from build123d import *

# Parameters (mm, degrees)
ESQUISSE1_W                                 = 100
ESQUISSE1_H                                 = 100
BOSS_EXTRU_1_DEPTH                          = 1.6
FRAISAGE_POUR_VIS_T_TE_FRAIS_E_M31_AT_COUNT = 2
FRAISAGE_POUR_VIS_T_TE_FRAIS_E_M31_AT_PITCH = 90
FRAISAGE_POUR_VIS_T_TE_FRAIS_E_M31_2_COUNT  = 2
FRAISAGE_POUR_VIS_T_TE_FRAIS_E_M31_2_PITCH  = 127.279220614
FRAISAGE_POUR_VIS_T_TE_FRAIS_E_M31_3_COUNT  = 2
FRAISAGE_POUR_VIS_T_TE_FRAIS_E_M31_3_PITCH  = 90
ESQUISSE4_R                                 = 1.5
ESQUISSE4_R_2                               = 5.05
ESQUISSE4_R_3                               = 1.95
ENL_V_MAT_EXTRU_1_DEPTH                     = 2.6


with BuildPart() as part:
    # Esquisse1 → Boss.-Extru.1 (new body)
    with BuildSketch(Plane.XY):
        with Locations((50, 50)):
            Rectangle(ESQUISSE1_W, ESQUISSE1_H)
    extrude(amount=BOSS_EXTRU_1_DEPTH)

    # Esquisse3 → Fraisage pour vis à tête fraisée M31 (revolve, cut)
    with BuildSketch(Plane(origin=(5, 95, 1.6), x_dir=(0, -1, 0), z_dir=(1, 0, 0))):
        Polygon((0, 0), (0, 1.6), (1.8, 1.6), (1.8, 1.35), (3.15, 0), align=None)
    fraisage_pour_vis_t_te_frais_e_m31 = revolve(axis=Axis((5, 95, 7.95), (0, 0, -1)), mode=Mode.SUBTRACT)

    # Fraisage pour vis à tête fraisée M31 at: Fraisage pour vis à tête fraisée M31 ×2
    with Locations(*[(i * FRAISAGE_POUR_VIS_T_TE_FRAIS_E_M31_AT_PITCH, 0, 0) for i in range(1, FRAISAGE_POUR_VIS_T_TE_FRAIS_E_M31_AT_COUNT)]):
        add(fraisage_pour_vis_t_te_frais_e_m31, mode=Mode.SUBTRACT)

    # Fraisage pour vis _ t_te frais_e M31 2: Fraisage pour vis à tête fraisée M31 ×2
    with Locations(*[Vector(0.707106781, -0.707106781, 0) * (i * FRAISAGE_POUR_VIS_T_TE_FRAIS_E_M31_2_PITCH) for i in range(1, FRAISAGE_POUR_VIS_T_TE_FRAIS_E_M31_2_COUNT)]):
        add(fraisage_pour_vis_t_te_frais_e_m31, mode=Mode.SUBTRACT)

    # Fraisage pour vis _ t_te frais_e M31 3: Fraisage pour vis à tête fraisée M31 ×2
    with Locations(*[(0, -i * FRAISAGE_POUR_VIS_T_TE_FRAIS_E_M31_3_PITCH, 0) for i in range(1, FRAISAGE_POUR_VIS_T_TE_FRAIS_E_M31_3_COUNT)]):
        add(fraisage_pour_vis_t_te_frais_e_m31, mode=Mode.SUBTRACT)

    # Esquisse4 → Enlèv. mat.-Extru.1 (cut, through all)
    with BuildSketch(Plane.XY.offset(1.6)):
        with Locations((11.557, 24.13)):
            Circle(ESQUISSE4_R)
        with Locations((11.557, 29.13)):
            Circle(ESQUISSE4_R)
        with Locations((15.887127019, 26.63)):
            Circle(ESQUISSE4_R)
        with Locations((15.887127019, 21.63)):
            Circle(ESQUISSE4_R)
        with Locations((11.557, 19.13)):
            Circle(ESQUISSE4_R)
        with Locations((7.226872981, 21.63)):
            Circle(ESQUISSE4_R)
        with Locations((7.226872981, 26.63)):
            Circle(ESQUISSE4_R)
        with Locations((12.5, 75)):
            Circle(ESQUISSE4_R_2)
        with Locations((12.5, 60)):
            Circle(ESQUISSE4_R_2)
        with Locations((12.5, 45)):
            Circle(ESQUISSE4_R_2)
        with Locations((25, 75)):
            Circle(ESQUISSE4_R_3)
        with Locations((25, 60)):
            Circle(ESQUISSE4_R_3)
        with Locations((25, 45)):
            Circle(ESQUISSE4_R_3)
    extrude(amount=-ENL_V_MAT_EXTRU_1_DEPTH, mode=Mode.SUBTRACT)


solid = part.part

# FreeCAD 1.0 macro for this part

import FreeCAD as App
import Part
import Sketcher
Q = App.Units.Quantity


def add_polygon(sketch, points):
    """Adds a closed chain of lines whose ends are joined by coincident constraints."""
    first, n = sketch.GeometryCount, len(points)
    for a, b in zip(points, points[1:] + points[:1]):
        sketch.addGeometry(Part.LineSegment(App.Vector(*a, 0), App.Vector(*b, 0)), False)
    for i in range(n):
        sketch.addConstraint(Sketcher.Constraint("Coincident", first + i, 2, first + (i + 1) % n, 1))

doc = App.newDocument("Part")
params = doc.addObject("Spreadsheet::Sheet", "Params")
for row, (alias, value) in enumerate([
    ("sketch1_width", "100 mm"),
    ("pad1_length", "1.6 mm"),
    ("sketch2_width", "1.8 mm"),
    ("sketch2_height", "1.6 mm"),
    ("sketch2_width2", "3.15 mm"),
    ("groove_angle", "360 deg"),
    ("linearpattern_pitch", "90 mm"),
    ("linearpattern2_pitch", "127.279221 mm"),
    ("linearpattern3_pitch", "90 mm"),
    ("sketch3_diameter", "3 mm"),
    ("sketch3_diameter2", "10.1 mm"),
    ("sketch3_diameter3", "3.9 mm"),
], start=1):
    params.set(f"A{row}", alias)
    params.set(f"B{row}", "=" + value)
    params.setAlias(f"B{row}", alias)

body = doc.addObject("PartDesign::Body", "Body")

# Sketch on XY plane
sketch1 = body.newObject("Sketcher::SketchObject", "Sketch")
sketch1.AttachmentSupport = (doc.getObject("XY_Plane"), [""])
sketch1.MapMode = "FlatFace"
add_polygon(sketch1, [(0, 100), (0, 0), (100, 0), (100, 100)])  # lines 0-3
sketch1.addConstraint(Sketcher.Constraint("Vertical", 0))
sketch1.addConstraint(Sketcher.Constraint("Horizontal", 1))
sketch1.addConstraint(Sketcher.Constraint("Vertical", 2))
sketch1.addConstraint(Sketcher.Constraint("Horizontal", 3))
sketch1.addConstraint(Sketcher.Constraint("Coincident", 0, 2, -1, 1))
sketch1.addConstraint(Sketcher.Constraint("Equal", 3, 0))
sketch1.addConstraint(Sketcher.Constraint("DistanceX", 1, 1, 1, 2, 100.0))
sketch1.setExpression("Constraints[10]", "Params.sketch1_width")
pad1 = body.newObject("PartDesign::Pad", "Pad")
pad1.Profile = sketch1
pad1.setExpression("Length", "Params.pad1_length")

# Sketch on YZ plane
sketch2 = body.newObject("Sketcher::SketchObject", "Sketch001")
sketch2.AttachmentSupport = (doc.getObject("YZ_Plane"), [""])
sketch2.MapMode = "FlatFace"
sketch2.AttachmentOffset = App.Placement(App.Vector(0, 0, 5), App.Rotation())
add_polygon(sketch2, [(95, 0), (95, 1.6), (91.85, 1.6), (93.2, 0.25), (93.2, 0)])  # lines 0-4
sketch2.addGeometry(Part.LineSegment(App.Vector(95, 1.6, 0), App.Vector(95, 0, 0)), True)  # axis
sketch2.addConstraint(Sketcher.Constraint("Vertical", 0))
sketch2.addConstraint(Sketcher.Constraint("Horizontal", 1))
sketch2.addConstraint(Sketcher.Constraint("Vertical", 3))
sketch2.addConstraint(Sketcher.Constraint("Horizontal", 4))
sketch2.addConstraint(Sketcher.Constraint("Vertical", 5))
sketch2.addConstraint(Sketcher.Constraint("Coincident", 5, 1, 0, 2))
sketch2.addConstraint(Sketcher.Constraint("PointOnObject", 3, 2, -1))
sketch2.addConstraint(Sketcher.Constraint("PointOnObject", 5, 2, -1))
sketch2.addConstraint(Sketcher.Constraint("Angle", 2, Q("-45 deg")))
sketch2.addConstraint(Sketcher.Constraint("DistanceX", 4, 1, 4, 2, 1.8))
sketch2.addConstraint(Sketcher.Constraint("DistanceY", 0, 1, 0, 2, 1.6))
sketch2.addConstraint(Sketcher.Constraint("DistanceX", -1, 1, 0, 2, 95.0))
sketch2.addConstraint(Sketcher.Constraint("DistanceX", 1, 2, 1, 1, 3.15))
sketch2.setExpression("Constraints[14]", "Params.sketch2_width")
sketch2.setExpression("Constraints[15]", "Params.sketch2_height")
sketch2.setExpression("Constraints[17]", "Params.sketch2_width2")
groove = body.newObject("PartDesign::Groove", "Groove")
groove.Profile = sketch2
groove.ReferenceAxis = (sketch2, ["Axis0"])
groove.setExpression("Angle", "Params.groove_angle")
doc.recompute()

linearpattern = body.newObject("PartDesign::LinearPattern", "LinearPattern")
linearpattern.Originals = [groove]
linearpattern.Direction = (doc.getObject("X_Axis"), [""])
linearpattern.Mode = "offset"
linearpattern.setExpression("Offset", "Params.linearpattern_pitch")
linearpattern.Occurrences = 2
body.Tip = linearpattern
doc.recompute()

datumline = body.newObject("PartDesign::Line", "DatumLine")
datumline.Placement = App.Placement(App.Vector(0, 0, 0), App.Rotation(App.Vector(0, 0, 1), App.Vector(0.707106781, -0.707106781, 0)))
linearpattern2 = body.newObject("PartDesign::LinearPattern", "LinearPattern001")
linearpattern2.Originals = [groove]
linearpattern2.Direction = (datumline, [""])
linearpattern2.Mode = "offset"
linearpattern2.setExpression("Offset", "Params.linearpattern2_pitch")
linearpattern2.Occurrences = 2
body.Tip = linearpattern2
doc.recompute()

linearpattern3 = body.newObject("PartDesign::LinearPattern", "LinearPattern002")
linearpattern3.Originals = [groove]
linearpattern3.Direction = (doc.getObject("Y_Axis"), [""])
linearpattern3.Mode = "offset"
linearpattern3.setExpression("Offset", "Params.linearpattern3_pitch")
linearpattern3.Occurrences = 2
linearpattern3.Reversed = True
body.Tip = linearpattern3

# Sketch on XY plane
sketch3 = body.newObject("Sketcher::SketchObject", "Sketch002")
sketch3.AttachmentSupport = (doc.getObject("XY_Plane"), [""])
sketch3.MapMode = "FlatFace"
sketch3.AttachmentOffset = App.Placement(App.Vector(0, 0, 1.6), App.Rotation())
sketch3.addGeometry(Part.Circle(App.Vector(11.6, 24.1, 0), App.Vector(0, 0, 1), 1.5), False)
sketch3.addGeometry(Part.Circle(App.Vector(11.6, 29.1, 0), App.Vector(0, 0, 1), 1.5), False)
sketch3.addGeometry(Part.Circle(App.Vector(15.9, 26.6, 0), App.Vector(0, 0, 1), 1.5), False)
sketch3.addGeometry(Part.Circle(App.Vector(15.9, 21.6, 0), App.Vector(0, 0, 1), 1.5), False)
sketch3.addGeometry(Part.Circle(App.Vector(11.6, 19.1, 0), App.Vector(0, 0, 1), 1.5), False)
sketch3.addGeometry(Part.Circle(App.Vector(7.2, 21.6, 0), App.Vector(0, 0, 1), 1.5), False)
sketch3.addGeometry(Part.Circle(App.Vector(7.2, 26.6, 0), App.Vector(0, 0, 1), 1.5), False)
sketch3.addGeometry(Part.Circle(App.Vector(12.5, 75, 0), App.Vector(0, 0, 1), 5), False)
sketch3.addGeometry(Part.Circle(App.Vector(12.5, 60, 0), App.Vector(0, 0, 1), 5), False)
sketch3.addGeometry(Part.Circle(App.Vector(12.5, 45, 0), App.Vector(0, 0, 1), 5), False)
sketch3.addGeometry(Part.Circle(App.Vector(25, 75, 0), App.Vector(0, 0, 1), 1.9), False)
sketch3.addGeometry(Part.Circle(App.Vector(25, 60, 0), App.Vector(0, 0, 1), 1.9), False)
sketch3.addGeometry(Part.Circle(App.Vector(25, 45, 0), App.Vector(0, 0, 1), 1.9), False)
sketch3.addConstraint(Sketcher.Constraint("Equal", 0, 1))
sketch3.addConstraint(Sketcher.Constraint("Equal", 1, 2))
sketch3.addConstraint(Sketcher.Constraint("Equal", 2, 3))
sketch3.addConstraint(Sketcher.Constraint("Equal", 3, 4))
sketch3.addConstraint(Sketcher.Constraint("Equal", 4, 5))
sketch3.addConstraint(Sketcher.Constraint("Equal", 5, 6))
sketch3.addConstraint(Sketcher.Constraint("Equal", 7, 8))
sketch3.addConstraint(Sketcher.Constraint("Equal", 8, 9))
sketch3.addConstraint(Sketcher.Constraint("Equal", 10, 11))
sketch3.addConstraint(Sketcher.Constraint("Equal", 11, 12))
sketch3.addConstraint(Sketcher.Constraint("Horizontal", 3, 3, 5, 3))
sketch3.addConstraint(Sketcher.Constraint("Horizontal", 2, 3, 6, 3))
sketch3.addConstraint(Sketcher.Constraint("Horizontal", 7, 3, 10, 3))
sketch3.addConstraint(Sketcher.Constraint("Horizontal", 8, 3, 11, 3))
sketch3.addConstraint(Sketcher.Constraint("Horizontal", 9, 3, 12, 3))
sketch3.addConstraint(Sketcher.Constraint("Vertical", 0, 3, 1, 3))
sketch3.addConstraint(Sketcher.Constraint("Vertical", 2, 3, 3, 3))
sketch3.addConstraint(Sketcher.Constraint("Vertical", 1, 3, 4, 3))
sketch3.addConstraint(Sketcher.Constraint("Vertical", 5, 3, 6, 3))
sketch3.addConstraint(Sketcher.Constraint("Vertical", 7, 3, 8, 3))
sketch3.addConstraint(Sketcher.Constraint("Vertical", 8, 3, 9, 3))
sketch3.addConstraint(Sketcher.Constraint("Vertical", 10, 3, 11, 3))
sketch3.addConstraint(Sketcher.Constraint("Vertical", 11, 3, 12, 3))
sketch3.addConstraint(Sketcher.Constraint("Diameter", 0, 3.0))
sketch3.addConstraint(Sketcher.Constraint("Diameter", 7, 10.1))
sketch3.addConstraint(Sketcher.Constraint("Diameter", 10, 3.9))
sketch3.addConstraint(Sketcher.Constraint("DistanceY", -1, 1, 7, 3, 75.0))
sketch3.addConstraint(Sketcher.Constraint("DistanceY", -1, 1, 8, 3, 60.0))
sketch3.addConstraint(Sketcher.Constraint("DistanceY", -1, 1, 9, 3, 45.0))
sketch3.addConstraint(Sketcher.Constraint("DistanceX", -1, 1, 10, 3, 25.0))
sketch3.addConstraint(Sketcher.Constraint("DistanceY", 0, 3, 1, 3, 5.0))
sketch3.addConstraint(Sketcher.Constraint("DistanceY", 3, 3, 2, 3, 5.0))
sketch3.addConstraint(Sketcher.Constraint("DistanceY", 4, 3, 0, 3, 5.0))
sketch3.addConstraint(Sketcher.Constraint("DistanceX", -1, 1, 7, 3, 12.5))
sketch3.addConstraint(Sketcher.Constraint("DistanceY", 0, 3, 2, 3, 2.5))
sketch3.addConstraint(Sketcher.Constraint("DistanceY", -1, 1, 0, 3, 24.13))
sketch3.addConstraint(Sketcher.Constraint("DistanceX", -1, 1, 0, 3, 11.557))
sketch3.addConstraint(Sketcher.Constraint("DistanceX", -1, 1, 2, 3, 15.887127))
sketch3.addConstraint(Sketcher.Constraint("DistanceX", -1, 1, 5, 3, 7.226873))
sketch3.setExpression("Constraints[23]", "Params.sketch3_diameter")
sketch3.setExpression("Constraints[24]", "Params.sketch3_diameter2")
sketch3.setExpression("Constraints[25]", "Params.sketch3_diameter3")
pocket1 = body.newObject("PartDesign::Pocket", "Pocket")
pocket1.Profile = sketch3
pocket1.Type = "ThroughAll"

doc.recompute()
